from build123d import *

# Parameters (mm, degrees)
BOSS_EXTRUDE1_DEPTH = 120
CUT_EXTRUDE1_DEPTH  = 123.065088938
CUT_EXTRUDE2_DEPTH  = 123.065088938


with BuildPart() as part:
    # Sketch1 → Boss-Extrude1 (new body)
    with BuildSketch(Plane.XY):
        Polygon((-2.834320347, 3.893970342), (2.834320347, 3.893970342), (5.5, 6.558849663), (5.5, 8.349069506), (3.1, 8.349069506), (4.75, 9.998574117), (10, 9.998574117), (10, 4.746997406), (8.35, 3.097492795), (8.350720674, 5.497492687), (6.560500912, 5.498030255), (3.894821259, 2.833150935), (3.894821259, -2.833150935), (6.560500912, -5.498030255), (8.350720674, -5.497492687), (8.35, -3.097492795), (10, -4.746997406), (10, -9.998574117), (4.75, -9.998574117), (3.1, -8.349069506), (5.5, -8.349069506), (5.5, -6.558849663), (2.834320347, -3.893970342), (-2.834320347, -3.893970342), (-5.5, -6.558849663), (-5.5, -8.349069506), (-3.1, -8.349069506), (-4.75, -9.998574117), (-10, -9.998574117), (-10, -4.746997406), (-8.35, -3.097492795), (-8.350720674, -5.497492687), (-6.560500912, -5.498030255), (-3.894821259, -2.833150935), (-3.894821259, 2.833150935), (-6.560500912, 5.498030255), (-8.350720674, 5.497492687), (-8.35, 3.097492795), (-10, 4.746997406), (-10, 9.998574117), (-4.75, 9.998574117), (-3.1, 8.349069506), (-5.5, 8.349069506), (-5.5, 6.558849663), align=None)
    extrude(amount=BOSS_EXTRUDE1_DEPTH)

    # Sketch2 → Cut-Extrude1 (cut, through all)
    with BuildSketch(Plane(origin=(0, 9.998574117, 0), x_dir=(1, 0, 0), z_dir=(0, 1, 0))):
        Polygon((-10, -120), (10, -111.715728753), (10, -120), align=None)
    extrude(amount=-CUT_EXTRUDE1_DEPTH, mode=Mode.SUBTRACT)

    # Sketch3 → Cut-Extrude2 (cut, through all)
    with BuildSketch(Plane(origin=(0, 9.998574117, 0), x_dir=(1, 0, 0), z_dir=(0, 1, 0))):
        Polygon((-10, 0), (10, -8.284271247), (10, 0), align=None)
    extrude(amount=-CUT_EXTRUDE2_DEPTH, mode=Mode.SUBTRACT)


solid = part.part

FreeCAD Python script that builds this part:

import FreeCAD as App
import Part
import Sketcher
from FreeCAD import Vector
Q = App.Units.Quantity


def add_polygon(sketch, points):
    """Adds a closed chain of lines whose ends are joined by coincident constraints."""
    first, n = sketch.GeometryCount, len(points)
    for a, b in zip(points, points[1:] + points[:1]):
        sketch.addGeometry(Part.LineSegment(App.Vector(*a, 0), App.Vector(*b, 0)), False)
    for i in range(n):
        sketch.addConstraint(Sketcher.Constraint("Coincident", first + i, 2, first + (i + 1) % n, 1))

doc = App.newDocument("Part")
body = doc.addObject("PartDesign::Body", "Body")

sketch1 = doc.addObject("Sketcher::SketchObject", "Sketch")
body.addObject(sketch1)
sketch1.AttachmentSupport = (doc.XY_Plane, [""])
sketch1.MapMode = "FlatFace"
add_polygon(sketch1, [(2.8, 3.9), (-2.8, 3.9), (-5.5, 6.6), (-5.5, 8.3), (-3.1, 8.3), (-4.8, 10), (-10, 10), (-10, 4.7), (-8.3, 3.1), (-8.4, 5.5), (-6.6, 5.5), (-3.9, 2.8), (-3.9, -2.8), (-6.6, -5.5), (-8.4, -5.5), (-8.3, -3.1), (-10, -4.7), (-10, -10), (-4.8, -10), (-3.1, -8.3), (-5.5, -8.3), (-5.5, -6.6), (-2.8, -3.9), (2.8, -3.9), (5.5, -6.6), (5.5, -8.3), (3.1, -8.3), (4.8, -10), (10, -10), (10, -4.7), (8.3, -3.1), (8.4, -5.5), (6.6, -5.5), (3.9, -2.8), (3.9, 2.8), (6.6, 5.5), (8.4, 5.5), (8.3, 3.1), (10, 4.7), (10, 10), (4.8, 10), (3.1, 8.3), (5.5, 8.3), (5.5, 6.6)])
sketch1.addConstraint([
    Sketcher.Constraint("Horizontal", 0),
    Sketcher.Constraint("Vertical", 2),
    Sketcher.Constraint("Horizontal", 3),
    Sketcher.Constraint("Horizontal", 5),
    Sketcher.Constraint("Vertical", 6),
    Sketcher.Constraint("Vertical", 11),
    Sketcher.Constraint("Vertical", 16),
    Sketcher.Constraint("Horizontal", 17),
    Sketcher.Constraint("Horizontal", 19),
    Sketcher.Constraint("Vertical", 20),
    Sketcher.Constraint("Horizontal", 22),
    Sketcher.Constraint("Vertical", 24),
    Sketcher.Constraint("Horizontal", 25),
    Sketcher.Constraint("Horizontal", 27),
    Sketcher.Constraint("Vertical", 28),
    Sketcher.Constraint("Vertical", 33),
    Sketcher.Constraint("Vertical", 38),
    Sketcher.Constraint("Horizontal", 39),
    Sketcher.Constraint("Horizontal", 41),
    Sketcher.Constraint("Vertical", 42),
    Sketcher.Constraint("Symmetric", 0, 2, 22, 2, -1, 1),
    Sketcher.Constraint("Symmetric", 1, 2, 23, 2, -1, 1),
    Sketcher.Constraint("Symmetric", 3, 2, 25, 2, -1, 1),
    Sketcher.Constraint("Symmetric", 4, 2, 26, 2, -1, 1),
    Sketcher.Constraint("Symmetric", 6, 2, 28, 2, -1, 1),
    Sketcher.Constraint("Symmetric", 7, 2, 29, 2, -1, 1),
    Sketcher.Constraint("Symmetric", 8, 2, 30, 2, -1, 1),
    Sketcher.Constraint("Symmetric", 9, 2, 31, 2, -1, 1),
    Sketcher.Constraint("Symmetric", 10, 2, 32, 2, -1, 1),
    Sketcher.Constraint("Symmetric", 12, 2, 34, 2, -1, 1),
    Sketcher.Constraint("Symmetric", 13, 2, 35, 2, -1, 1),
    Sketcher.Constraint("Symmetric", 14, 2, 36, 2, -1, 1),
    Sketcher.Constraint("Symmetric", 15, 2, 37, 2, -1, 1),
    Sketcher.Constraint("Symmetric", 17, 2, 39, 2, -1, 1),
    Sketcher.Constraint("Symmetric", 18, 2, 40, 2, -1, 1),
    Sketcher.Constraint("Symmetric", 20, 2, 42, 2, -1, 1),
    Sketcher.Constraint("Symmetric", 20, 2, 23, 2, -2),
    Sketcher.Constraint("Symmetric", 18, 2, 25, 2, -2),
    Sketcher.Constraint("Symmetric", 17, 2, 26, 2, -2),
    Sketcher.Constraint("Symmetric", 15, 2, 28, 2, -2),
    Sketcher.Constraint("Symmetric", 14, 2, 29, 2, -2),
    Sketcher.Constraint("Symmetric", 13, 2, 30, 2, -2),
    Sketcher.Constraint("Symmetric", 12, 2, 31, 2, -2),
    Sketcher.Constraint("Parallel", 1, 4),
    Sketcher.Constraint("Parallel", 4, 7),
    Sketcher.Constraint("Perpendicular", 8, 9),
    Sketcher.Constraint("Parallel", 7, 10),
    Sketcher.Constraint("Parallel", 12, 15),
    Sketcher.Constraint("Parallel", 18, 21),
    Sketcher.Constraint("Parallel", 21, 34),
    Sketcher.Constraint("Parallel", 40, 43),
    Sketcher.Constraint("Equal", 4, 7),
    Sketcher.Constraint("Equal", 1, 10),
    Sketcher.Constraint("DistanceX", 3, 1, 3, 2, Q("2.4 mm")),
    Sketcher.Constraint("DistanceX", 5, 2, -1, 1, Q("10 mm")),
    Sketcher.Constraint("Distance", 8, Q("2.4 mm")),
    Sketcher.Constraint("DistanceX", 5, 2, 5, 1, Q("5.25 mm")),
    Sketcher.Constraint("DistanceX", 1, 2, -1, 1, Q("5.5 mm")),
    Sketcher.Constraint("DistanceY", 11, 2, 11, 1, Q("5.666302 mm")),
    Sketcher.Constraint("DistanceY", 12, 2, 0, 2, Q("9.392001 mm")),
    Sketcher.Constraint("DistanceX", 0, 2, 0, 1, Q("5.668641 mm")),
    Sketcher.Constraint("DistanceY", 2, 1, 2, 2, Q("1.79022 mm")),
    Sketcher.Constraint("DistanceX", 9, 2, -1, 1, Q("6.560501 mm")),
    Sketcher.Constraint("DistanceY", 0, 2, 2, 2, Q("4.455099 mm")),
    Sketcher.Constraint("DistanceX", 8, 2, 10, 2, Q("4.455899 mm")),
])
pad1 = doc.addObject("PartDesign::Pad", "Pad")
body.addObject(pad1)
pad1.Profile = sketch1
pad1.Length = 120

sketch2 = doc.addObject("Sketcher::SketchObject", "Sketch001")
body.addObject(sketch2)
sketch2.AttachmentSupport = (doc.XZ_Plane, [""])
sketch2.MapMode = "FlatFace"
sketch2.AttachmentOffset = App.Placement(Vector(0, 0, -9.998574), App.Rotation())
add_polygon(sketch2, [(10, 112), (-10, 120), (10, 120)])
sketch2.addConstraint([
    Sketcher.Constraint("Horizontal", 1),
    Sketcher.Constraint("Vertical", 2),
    Sketcher.Constraint("DistanceX", 1, 1, 1, 2, Q("20 mm")),
    Sketcher.Constraint("DistanceX", 0, 2, -1, 1, Q("10 mm")),
    Sketcher.Constraint("DistanceY", -1, 1, 0, 2, Q("120 mm")),
    Sketcher.Constraint("Angle", 0, Q("157.5 deg")),
])
pocket1 = doc.addObject("PartDesign::Pocket", "Pocket")
body.addObject(pocket1)
pocket1.Profile = sketch2
pocket1.Type = "ThroughAll"
pocket1.Reversed = True

sketch3 = doc.addObject("Sketcher::SketchObject", "Sketch002")
body.addObject(sketch3)
sketch3.AttachmentSupport = (doc.XZ_Plane, [""])
sketch3.MapMode = "FlatFace"
sketch3.AttachmentOffset = App.Placement(Vector(0, 0, -9.998574), App.Rotation())
add_polygon(sketch3, [(-10, 0), (10, 8), (10, 0)])
sketch3.addConstraint([
    Sketcher.Constraint("Vertical", 1),
    Sketcher.Constraint("Horizontal", 2),
    Sketcher.Constraint("Symmetric", 1, 2, 2, 2, -1, 1),
    Sketcher.Constraint("DistanceX", 2, 2, 2, 1, Q("20 mm")),
    Sketcher.Constraint("Angle", 0, Q("22.5 deg")),
])
pocket2 = doc.addObject("PartDesign::Pocket", "Pocket001")
body.addObject(pocket2)
pocket2.Profile = sketch3
pocket2.Type = "ThroughAll"
pocket2.Reversed = True

doc.recompute()
